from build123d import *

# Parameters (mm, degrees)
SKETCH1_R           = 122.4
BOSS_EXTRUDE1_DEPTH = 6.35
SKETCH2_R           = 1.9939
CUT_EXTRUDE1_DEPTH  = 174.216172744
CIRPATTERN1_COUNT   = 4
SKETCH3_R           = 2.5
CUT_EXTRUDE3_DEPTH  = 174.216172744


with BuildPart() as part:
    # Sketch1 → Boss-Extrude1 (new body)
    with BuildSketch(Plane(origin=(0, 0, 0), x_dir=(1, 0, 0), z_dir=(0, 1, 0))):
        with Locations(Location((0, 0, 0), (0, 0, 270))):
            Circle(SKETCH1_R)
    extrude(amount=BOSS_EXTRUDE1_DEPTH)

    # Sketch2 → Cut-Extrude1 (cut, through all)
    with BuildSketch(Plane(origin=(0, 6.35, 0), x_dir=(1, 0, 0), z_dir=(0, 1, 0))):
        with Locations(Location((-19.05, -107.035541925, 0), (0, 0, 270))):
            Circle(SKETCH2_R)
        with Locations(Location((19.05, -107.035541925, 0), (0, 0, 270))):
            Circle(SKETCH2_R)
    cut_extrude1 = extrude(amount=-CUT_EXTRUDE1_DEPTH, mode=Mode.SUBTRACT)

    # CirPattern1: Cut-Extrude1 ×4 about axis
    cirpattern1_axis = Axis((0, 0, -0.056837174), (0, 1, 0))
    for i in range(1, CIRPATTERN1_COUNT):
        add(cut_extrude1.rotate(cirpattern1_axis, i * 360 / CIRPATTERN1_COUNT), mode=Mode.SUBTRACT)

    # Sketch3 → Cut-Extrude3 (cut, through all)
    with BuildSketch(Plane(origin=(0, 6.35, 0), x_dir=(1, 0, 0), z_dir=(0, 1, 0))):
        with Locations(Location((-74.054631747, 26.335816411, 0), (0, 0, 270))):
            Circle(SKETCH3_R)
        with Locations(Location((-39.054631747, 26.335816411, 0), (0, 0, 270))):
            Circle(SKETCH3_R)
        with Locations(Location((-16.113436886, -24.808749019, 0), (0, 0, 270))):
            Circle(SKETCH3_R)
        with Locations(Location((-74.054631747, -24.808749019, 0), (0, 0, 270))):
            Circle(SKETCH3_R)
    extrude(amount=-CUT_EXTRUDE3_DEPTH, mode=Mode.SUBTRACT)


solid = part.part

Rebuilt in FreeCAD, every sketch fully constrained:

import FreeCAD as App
import Part
import Sketcher

V = App.Vector

doc = App.newDocument("Part")
body = doc.addObject("PartDesign::Body", "Body")

# Sketch on XZ plane
sketch1 = body.newObject("Sketcher::SketchObject", "Sketch")
sketch1.AttachmentSupport = (doc.getObject("XZ_Plane"), [""])
sketch1.MapMode = "FlatFace"
sketch1.addGeometry(Part.Circle(V(0, 0, 0), V(0, 0, 1), 122), False)
sketch1.addConstraint(Sketcher.Constraint("Coincident", 0, 3, -1, 1))
sketch1.addConstraint(Sketcher.Constraint("Diameter", 0, 244.8))
pad1 = body.newObject("PartDesign::Pad", "Pad")
pad1.Profile = sketch1
pad1.Length = 6.35
pad1.Reversed = True

# Sketch on XZ plane
sketch2 = body.newObject("Sketcher::SketchObject", "Sketch001")
sketch2.AttachmentSupport = (doc.getObject("XZ_Plane"), [""])
sketch2.MapMode = "FlatFace"
sketch2.AttachmentOffset = App.Placement(V(0, 0, -6.35), App.Rotation())
sketch2.addGeometry(Part.Circle(V(-19.1, 107, 0), V(0, 0, 1), 2), False)
sketch2.addGeometry(Part.Circle(V(19.1, 107, 0), V(0, 0, 1), 2), False)
sketch2.addConstraint(Sketcher.Constraint("Equal", 0, 1))
sketch2.addConstraint(Sketcher.Constraint("Symmetric", 0, 3, 1, 3, -2))
sketch2.addConstraint(Sketcher.Constraint("Diameter", 0, 3.9878))
sketch2.addConstraint(Sketcher.Constraint("DistanceX", 0, 3, 1, 3, 38.1))
sketch2.addConstraint(Sketcher.Constraint("DistanceY", -1, 1, 0, 3, 107.035542))
pocket1 = body.newObject("PartDesign::Pocket", "Pocket")
pocket1.Profile = sketch2
pocket1.Type = "ThroughAll"
pocket1.Reversed = True
doc.recompute()

datumline = body.newObject("PartDesign::Line", "DatumLine")
datumline.Placement = App.Placement(V(0, 0, -0.056837), App.Rotation(V(0, 0, 1), V(0, 1, 0)))
polarpattern = body.newObject("PartDesign::PolarPattern", "PolarPattern")
polarpattern.Originals = [pocket1]
polarpattern.Axis = (datumline, [""])
polarpattern.Angle = 360
polarpattern.Occurrences = 4
body.Tip = polarpattern

# Sketch on XZ plane
sketch3 = body.newObject("Sketcher::SketchObject", "Sketch002")
sketch3.AttachmentSupport = (doc.getObject("XZ_Plane"), [""])
sketch3.MapMode = "FlatFace"
sketch3.AttachmentOffset = App.Placement(V(0, 0, -6.35), App.Rotation())
sketch3.addGeometry(Part.Circle(V(-74.1, -26.3, 0), V(0, 0, 1), 2.5), False)
sketch3.addGeometry(Part.Circle(V(-39.1, -26.3, 0), V(0, 0, 1), 2.5), False)
sketch3.addGeometry(Part.Circle(V(-16.1, 24.8, 0), V(0, 0, 1), 2.5), False)
sketch3.addGeometry(Part.Circle(V(-74.1, 24.8, 0), V(0, 0, 1), 2.5), False)
sketch3.addConstraint(Sketcher.Constraint("Equal", 0, 1))
sketch3.addConstraint(Sketcher.Constraint("Equal", 1, 2))
sketch3.addConstraint(Sketcher.Constraint("Equal", 2, 3))
sketch3.addConstraint(Sketcher.Constraint("Horizontal", 0, 3, 1, 3))
sketch3.addConstraint(Sketcher.Constraint("Horizontal", 2, 3, 3, 3))
sketch3.addConstraint(Sketcher.Constraint("Vertical", 0, 3, 3, 3))
sketch3.addConstraint(Sketcher.Constraint("Diameter", 0, 5.0))
sketch3.addConstraint(Sketcher.Constraint("DistanceX", 0, 3, 1, 3, 35.0))
sketch3.addConstraint(Sketcher.Constraint("DistanceX", 0, 3, -1, 1, 74.054632))
sketch3.addConstraint(Sketcher.Constraint("DistanceY", -1, 1, 2, 3, 24.808749))
sketch3.addConstraint(Sketcher.Constraint("DistanceY", 0, 3, -1, 1, 26.335816))
sketch3.addConstraint(Sketcher.Constraint("DistanceX", 2, 3, -1, 1, 16.113437))
pocket2 = body.newObject("PartDesign::Pocket", "Pocket001")
pocket2.Profile = sketch3
pocket2.Type = "ThroughAll"
pocket2.Reversed = True

doc.recompute()
